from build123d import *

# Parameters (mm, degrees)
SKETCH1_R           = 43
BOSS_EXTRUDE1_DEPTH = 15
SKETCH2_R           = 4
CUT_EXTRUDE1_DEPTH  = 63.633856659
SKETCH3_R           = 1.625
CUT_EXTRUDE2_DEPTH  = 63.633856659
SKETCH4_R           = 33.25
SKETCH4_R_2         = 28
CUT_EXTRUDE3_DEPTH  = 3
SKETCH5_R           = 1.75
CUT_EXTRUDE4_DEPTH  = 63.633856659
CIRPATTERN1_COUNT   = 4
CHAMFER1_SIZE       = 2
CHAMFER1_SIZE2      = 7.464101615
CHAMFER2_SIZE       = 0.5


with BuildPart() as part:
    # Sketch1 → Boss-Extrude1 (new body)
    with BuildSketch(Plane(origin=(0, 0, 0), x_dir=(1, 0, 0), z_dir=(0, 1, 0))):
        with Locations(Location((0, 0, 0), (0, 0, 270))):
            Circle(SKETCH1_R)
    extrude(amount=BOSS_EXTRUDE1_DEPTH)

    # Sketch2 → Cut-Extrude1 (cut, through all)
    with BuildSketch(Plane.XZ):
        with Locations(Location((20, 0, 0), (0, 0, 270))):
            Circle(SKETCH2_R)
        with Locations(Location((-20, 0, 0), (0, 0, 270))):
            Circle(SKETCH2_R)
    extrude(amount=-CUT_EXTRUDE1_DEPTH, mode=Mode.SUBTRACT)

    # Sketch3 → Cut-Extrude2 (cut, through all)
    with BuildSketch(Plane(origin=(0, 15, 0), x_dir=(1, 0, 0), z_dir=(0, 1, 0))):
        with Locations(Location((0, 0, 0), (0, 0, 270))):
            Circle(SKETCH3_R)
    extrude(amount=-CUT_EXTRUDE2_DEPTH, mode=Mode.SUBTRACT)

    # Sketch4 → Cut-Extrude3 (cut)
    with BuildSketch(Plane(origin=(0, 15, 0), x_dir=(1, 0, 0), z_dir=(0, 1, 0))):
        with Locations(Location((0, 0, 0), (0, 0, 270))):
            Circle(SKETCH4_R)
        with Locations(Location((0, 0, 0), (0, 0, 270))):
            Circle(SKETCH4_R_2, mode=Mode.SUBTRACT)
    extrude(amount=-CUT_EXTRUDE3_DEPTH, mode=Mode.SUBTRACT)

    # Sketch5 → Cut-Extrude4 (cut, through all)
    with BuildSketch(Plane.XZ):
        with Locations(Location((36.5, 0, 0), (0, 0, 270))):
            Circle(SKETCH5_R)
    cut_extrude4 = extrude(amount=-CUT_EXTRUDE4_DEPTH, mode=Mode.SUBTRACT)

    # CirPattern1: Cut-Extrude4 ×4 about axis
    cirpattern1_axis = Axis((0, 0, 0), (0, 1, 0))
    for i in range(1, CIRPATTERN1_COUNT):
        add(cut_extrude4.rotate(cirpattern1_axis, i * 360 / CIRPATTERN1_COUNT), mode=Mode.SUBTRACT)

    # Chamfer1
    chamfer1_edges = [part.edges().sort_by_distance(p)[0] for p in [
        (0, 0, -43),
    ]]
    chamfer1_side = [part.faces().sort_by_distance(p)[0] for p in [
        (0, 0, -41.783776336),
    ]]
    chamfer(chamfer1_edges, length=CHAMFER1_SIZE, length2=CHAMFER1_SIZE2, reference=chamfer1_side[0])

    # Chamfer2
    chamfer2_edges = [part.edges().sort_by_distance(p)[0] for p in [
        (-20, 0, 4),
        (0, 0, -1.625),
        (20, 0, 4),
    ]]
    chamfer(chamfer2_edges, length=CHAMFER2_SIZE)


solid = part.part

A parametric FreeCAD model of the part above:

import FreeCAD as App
import Part
import Sketcher

V = App.Vector


def edges_at(feature, points):
    """Names of the edges that pass closest to the given points."""
    edges = feature.Shape.Edges
    near = lambda p: min(range(len(edges)), key=lambda i: edges[i].distToShape(Part.Vertex(*p))[0])
    return sorted({f"Edge{near(p) + 1}" for p in points})

doc = App.newDocument("Part")
body = doc.addObject("PartDesign::Body", "Body")

sketch1 = doc.addObject("Sketcher::SketchObject", "Sketch")
body.addObject(sketch1)
sketch1.AttachmentSupport = (doc.XZ_Plane, [""])
sketch1.MapMode = "FlatFace"
sketch1.addGeometry(Part.Circle(V(0, 0, 0), V(0, 0, 1), 43), False)
sketch1.addConstraint(Sketcher.Constraint("Coincident", 0, 3, -1, 1))
sketch1.addConstraint(Sketcher.Constraint("Diameter", 0, 86.0))
pad1 = doc.addObject("PartDesign::Pad", "Pad")
body.addObject(pad1)
pad1.Profile = sketch1
pad1.Length = 15
pad1.Reversed = True

sketch2 = doc.addObject("Sketcher::SketchObject", "Sketch001")
body.addObject(sketch2)
sketch2.AttachmentSupport = (doc.XZ_Plane, [""])
sketch2.MapMode = "FlatFace"
sketch2.addGeometry(Part.Circle(V(20, 0, 0), V(0, 0, 1), 4), False)
sketch2.addGeometry(Part.Circle(V(-20, 0, 0), V(0, 0, 1), 4), False)
sketch2.addConstraint(Sketcher.Constraint("Equal", 0, 1))
sketch2.addConstraint(Sketcher.Constraint("Symmetric", 0, 3, 1, 3, -1, 1))
sketch2.addConstraint(Sketcher.Constraint("PointOnObject", 0, 3, -1))
sketch2.addConstraint(Sketcher.Constraint("Diameter", 0, 8.0))
sketch2.addConstraint(Sketcher.Constraint("DistanceX", -1, 1, 0, 3, 20.0))
pocket1 = doc.addObject("PartDesign::Pocket", "Pocket")
body.addObject(pocket1)
pocket1.Profile = sketch2
pocket1.Type = "ThroughAll"

sketch3 = doc.addObject("Sketcher::SketchObject", "Sketch002")
body.addObject(sketch3)
sketch3.AttachmentSupport = (doc.XZ_Plane, [""])
sketch3.MapMode = "FlatFace"
sketch3.AttachmentOffset = App.Placement(V(0, 0, -15), App.Rotation())
sketch3.addGeometry(Part.Circle(V(0, 0, 0), V(0, 0, 1), 1.625), False)
sketch3.addConstraint(Sketcher.Constraint("Coincident", 0, 3, -1, 1))
sketch3.addConstraint(Sketcher.Constraint("Diameter", 0, 3.25))
pocket2 = doc.addObject("PartDesign::Pocket", "Pocket001")
body.addObject(pocket2)
pocket2.Profile = sketch3
pocket2.Type = "ThroughAll"
pocket2.Reversed = True

sketch4 = doc.addObject("Sketcher::SketchObject", "Sketch003")
body.addObject(sketch4)
sketch4.AttachmentSupport = (doc.XZ_Plane, [""])
sketch4.MapMode = "FlatFace"
sketch4.AttachmentOffset = App.Placement(V(0, 0, -15), App.Rotation())
sketch4.addGeometry(Part.Circle(V(0, 0, 0), V(0, 0, 1), 33.25), False)
sketch4.addGeometry(Part.Circle(V(0, 0, 0), V(0, 0, 1), 28), False)
sketch4.addConstraint(Sketcher.Constraint("Coincident", 0, 3, -1, 1))
sketch4.addConstraint(Sketcher.Constraint("Coincident", 1, 3, -1, 1))
sketch4.addConstraint(Sketcher.Constraint("Diameter", 1, 56.0))
sketch4.addConstraint(Sketcher.Constraint("Diameter", 0, 66.5))
pocket3 = doc.addObject("PartDesign::Pocket", "Pocket002")
body.addObject(pocket3)
pocket3.Profile = sketch4
pocket3.Length = 3
pocket3.Reversed = True

sketch5 = doc.addObject("Sketcher::SketchObject", "Sketch004")
body.addObject(sketch5)
sketch5.AttachmentSupport = (doc.XZ_Plane, [""])
sketch5.MapMode = "FlatFace"
sketch5.addGeometry(Part.Circle(V(36.5, 0, 0), V(0, 0, 1), 1.75), False)
sketch5.addConstraint(Sketcher.Constraint("PointOnObject", 0, 3, -1))
sketch5.addConstraint(Sketcher.Constraint("Diameter", 0, 3.5))
sketch5.addConstraint(Sketcher.Constraint("DistanceX", -1, 1, 0, 3, 36.5))
pocket4 = doc.addObject("PartDesign::Pocket", "Pocket003")
body.addObject(pocket4)
pocket4.Profile = sketch5
pocket4.Type = "ThroughAll"
doc.recompute()

polarpattern = doc.addObject("PartDesign::PolarPattern", "PolarPattern")
body.addObject(polarpattern)
polarpattern.Originals = [pocket4]
polarpattern.Axis = (doc.Y_Axis, [""])
polarpattern.Angle = 360
polarpattern.Occurrences = 4
body.Tip = polarpattern
doc.recompute()

chamfer = doc.addObject("PartDesign::Chamfer", "Chamfer")
body.addObject(chamfer)
chamfer.Base = (polarpattern, edges_at(polarpattern, [(0, 0, -43)]))
chamfer.ChamferType = "Two distances"
chamfer.Size = 2
chamfer.Size2 = 7.464102
chamfer.FlipDirection = True
doc.recompute()

chamfer2 = doc.addObject("PartDesign::Chamfer", "Chamfer001")
body.addObject(chamfer2)
chamfer2.Base = (chamfer, edges_at(chamfer, [(-20, 0, 4), (0, 0, -1.625), (20, 0, 4)]))
chamfer2.Size = 0.5

doc.recompute()
